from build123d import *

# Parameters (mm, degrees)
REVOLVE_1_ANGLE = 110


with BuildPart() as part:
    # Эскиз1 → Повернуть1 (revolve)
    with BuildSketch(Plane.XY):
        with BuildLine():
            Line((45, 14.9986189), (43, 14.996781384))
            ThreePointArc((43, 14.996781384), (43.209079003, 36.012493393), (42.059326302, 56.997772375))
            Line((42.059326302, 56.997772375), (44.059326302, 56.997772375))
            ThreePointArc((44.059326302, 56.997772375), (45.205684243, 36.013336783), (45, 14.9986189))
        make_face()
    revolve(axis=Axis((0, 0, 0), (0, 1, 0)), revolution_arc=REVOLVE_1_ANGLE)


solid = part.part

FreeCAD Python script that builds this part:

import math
import FreeCAD as App
import Part
import Sketcher

doc = App.newDocument("Part")
body = doc.addObject("PartDesign::Body", "Body")

sketch1 = body.newObject("Sketcher::SketchObject", "Sketch")
sketch1.AttachmentSupport = (doc.getObject("XY_Plane"), [""])
sketch1.MapMode = "FlatFace"
sketch1.addGeometry([
    Part.LineSegment(App.Vector(43, 15, 0), App.Vector(45, 15, 0)),
    Part.ArcOfCircle(Part.Circle(App.Vector(-281.3, 28.7, 0), App.Vector(0, 0, 1), 326.6), math.radians(-2.4), math.radians(4.97)),
    Part.LineSegment(App.Vector(44.1, 57, 0), App.Vector(42.1, 57, 0)),
    Part.ArcOfCircle(Part.Circle(App.Vector(-281.7, 28.7, 0), App.Vector(0, 0, 1), 325), math.radians(-2.42), math.radians(4.99)),
], False)
sketch1.addConstraint([
    Sketcher.Constraint("Coincident", 0, 2, 1, 1),
    Sketcher.Constraint("Coincident", 1, 2, 2, 1),
    Sketcher.Constraint("Coincident", 2, 2, 3, 2),
    Sketcher.Constraint("Coincident", 3, 1, 0, 1),
    Sketcher.Constraint("Horizontal", 2),
    Sketcher.Constraint("DistanceX", 2, 2, 2, 1, 2.0),
    Sketcher.Constraint("Radius", 1, 326.58),
    Sketcher.Constraint("Radius", 3, 324.98),
    Sketcher.Constraint("Distance", 0, 2.000001),
    Sketcher.Constraint("DistanceX", -1, 1, 0, 2, 45.0),
    Sketcher.Constraint("DistanceY", 1, 3, 3, 3, 0.035302),
    Sketcher.Constraint("DistanceY", -1, 1, 0, 2, 14.998619),
    Sketcher.Constraint("DistanceX", 1, 3, 1, 2, 325.351759),
    Sketcher.Constraint("DistanceX", 1, 3, -1, 1, 281.292433),
])
revolution = body.newObject("PartDesign::Revolution", "Revolution")
revolution.Profile = sketch1
revolution.ReferenceAxis = (sketch1, ["V_Axis"])
revolution.Angle = 110

doc.recompute()
